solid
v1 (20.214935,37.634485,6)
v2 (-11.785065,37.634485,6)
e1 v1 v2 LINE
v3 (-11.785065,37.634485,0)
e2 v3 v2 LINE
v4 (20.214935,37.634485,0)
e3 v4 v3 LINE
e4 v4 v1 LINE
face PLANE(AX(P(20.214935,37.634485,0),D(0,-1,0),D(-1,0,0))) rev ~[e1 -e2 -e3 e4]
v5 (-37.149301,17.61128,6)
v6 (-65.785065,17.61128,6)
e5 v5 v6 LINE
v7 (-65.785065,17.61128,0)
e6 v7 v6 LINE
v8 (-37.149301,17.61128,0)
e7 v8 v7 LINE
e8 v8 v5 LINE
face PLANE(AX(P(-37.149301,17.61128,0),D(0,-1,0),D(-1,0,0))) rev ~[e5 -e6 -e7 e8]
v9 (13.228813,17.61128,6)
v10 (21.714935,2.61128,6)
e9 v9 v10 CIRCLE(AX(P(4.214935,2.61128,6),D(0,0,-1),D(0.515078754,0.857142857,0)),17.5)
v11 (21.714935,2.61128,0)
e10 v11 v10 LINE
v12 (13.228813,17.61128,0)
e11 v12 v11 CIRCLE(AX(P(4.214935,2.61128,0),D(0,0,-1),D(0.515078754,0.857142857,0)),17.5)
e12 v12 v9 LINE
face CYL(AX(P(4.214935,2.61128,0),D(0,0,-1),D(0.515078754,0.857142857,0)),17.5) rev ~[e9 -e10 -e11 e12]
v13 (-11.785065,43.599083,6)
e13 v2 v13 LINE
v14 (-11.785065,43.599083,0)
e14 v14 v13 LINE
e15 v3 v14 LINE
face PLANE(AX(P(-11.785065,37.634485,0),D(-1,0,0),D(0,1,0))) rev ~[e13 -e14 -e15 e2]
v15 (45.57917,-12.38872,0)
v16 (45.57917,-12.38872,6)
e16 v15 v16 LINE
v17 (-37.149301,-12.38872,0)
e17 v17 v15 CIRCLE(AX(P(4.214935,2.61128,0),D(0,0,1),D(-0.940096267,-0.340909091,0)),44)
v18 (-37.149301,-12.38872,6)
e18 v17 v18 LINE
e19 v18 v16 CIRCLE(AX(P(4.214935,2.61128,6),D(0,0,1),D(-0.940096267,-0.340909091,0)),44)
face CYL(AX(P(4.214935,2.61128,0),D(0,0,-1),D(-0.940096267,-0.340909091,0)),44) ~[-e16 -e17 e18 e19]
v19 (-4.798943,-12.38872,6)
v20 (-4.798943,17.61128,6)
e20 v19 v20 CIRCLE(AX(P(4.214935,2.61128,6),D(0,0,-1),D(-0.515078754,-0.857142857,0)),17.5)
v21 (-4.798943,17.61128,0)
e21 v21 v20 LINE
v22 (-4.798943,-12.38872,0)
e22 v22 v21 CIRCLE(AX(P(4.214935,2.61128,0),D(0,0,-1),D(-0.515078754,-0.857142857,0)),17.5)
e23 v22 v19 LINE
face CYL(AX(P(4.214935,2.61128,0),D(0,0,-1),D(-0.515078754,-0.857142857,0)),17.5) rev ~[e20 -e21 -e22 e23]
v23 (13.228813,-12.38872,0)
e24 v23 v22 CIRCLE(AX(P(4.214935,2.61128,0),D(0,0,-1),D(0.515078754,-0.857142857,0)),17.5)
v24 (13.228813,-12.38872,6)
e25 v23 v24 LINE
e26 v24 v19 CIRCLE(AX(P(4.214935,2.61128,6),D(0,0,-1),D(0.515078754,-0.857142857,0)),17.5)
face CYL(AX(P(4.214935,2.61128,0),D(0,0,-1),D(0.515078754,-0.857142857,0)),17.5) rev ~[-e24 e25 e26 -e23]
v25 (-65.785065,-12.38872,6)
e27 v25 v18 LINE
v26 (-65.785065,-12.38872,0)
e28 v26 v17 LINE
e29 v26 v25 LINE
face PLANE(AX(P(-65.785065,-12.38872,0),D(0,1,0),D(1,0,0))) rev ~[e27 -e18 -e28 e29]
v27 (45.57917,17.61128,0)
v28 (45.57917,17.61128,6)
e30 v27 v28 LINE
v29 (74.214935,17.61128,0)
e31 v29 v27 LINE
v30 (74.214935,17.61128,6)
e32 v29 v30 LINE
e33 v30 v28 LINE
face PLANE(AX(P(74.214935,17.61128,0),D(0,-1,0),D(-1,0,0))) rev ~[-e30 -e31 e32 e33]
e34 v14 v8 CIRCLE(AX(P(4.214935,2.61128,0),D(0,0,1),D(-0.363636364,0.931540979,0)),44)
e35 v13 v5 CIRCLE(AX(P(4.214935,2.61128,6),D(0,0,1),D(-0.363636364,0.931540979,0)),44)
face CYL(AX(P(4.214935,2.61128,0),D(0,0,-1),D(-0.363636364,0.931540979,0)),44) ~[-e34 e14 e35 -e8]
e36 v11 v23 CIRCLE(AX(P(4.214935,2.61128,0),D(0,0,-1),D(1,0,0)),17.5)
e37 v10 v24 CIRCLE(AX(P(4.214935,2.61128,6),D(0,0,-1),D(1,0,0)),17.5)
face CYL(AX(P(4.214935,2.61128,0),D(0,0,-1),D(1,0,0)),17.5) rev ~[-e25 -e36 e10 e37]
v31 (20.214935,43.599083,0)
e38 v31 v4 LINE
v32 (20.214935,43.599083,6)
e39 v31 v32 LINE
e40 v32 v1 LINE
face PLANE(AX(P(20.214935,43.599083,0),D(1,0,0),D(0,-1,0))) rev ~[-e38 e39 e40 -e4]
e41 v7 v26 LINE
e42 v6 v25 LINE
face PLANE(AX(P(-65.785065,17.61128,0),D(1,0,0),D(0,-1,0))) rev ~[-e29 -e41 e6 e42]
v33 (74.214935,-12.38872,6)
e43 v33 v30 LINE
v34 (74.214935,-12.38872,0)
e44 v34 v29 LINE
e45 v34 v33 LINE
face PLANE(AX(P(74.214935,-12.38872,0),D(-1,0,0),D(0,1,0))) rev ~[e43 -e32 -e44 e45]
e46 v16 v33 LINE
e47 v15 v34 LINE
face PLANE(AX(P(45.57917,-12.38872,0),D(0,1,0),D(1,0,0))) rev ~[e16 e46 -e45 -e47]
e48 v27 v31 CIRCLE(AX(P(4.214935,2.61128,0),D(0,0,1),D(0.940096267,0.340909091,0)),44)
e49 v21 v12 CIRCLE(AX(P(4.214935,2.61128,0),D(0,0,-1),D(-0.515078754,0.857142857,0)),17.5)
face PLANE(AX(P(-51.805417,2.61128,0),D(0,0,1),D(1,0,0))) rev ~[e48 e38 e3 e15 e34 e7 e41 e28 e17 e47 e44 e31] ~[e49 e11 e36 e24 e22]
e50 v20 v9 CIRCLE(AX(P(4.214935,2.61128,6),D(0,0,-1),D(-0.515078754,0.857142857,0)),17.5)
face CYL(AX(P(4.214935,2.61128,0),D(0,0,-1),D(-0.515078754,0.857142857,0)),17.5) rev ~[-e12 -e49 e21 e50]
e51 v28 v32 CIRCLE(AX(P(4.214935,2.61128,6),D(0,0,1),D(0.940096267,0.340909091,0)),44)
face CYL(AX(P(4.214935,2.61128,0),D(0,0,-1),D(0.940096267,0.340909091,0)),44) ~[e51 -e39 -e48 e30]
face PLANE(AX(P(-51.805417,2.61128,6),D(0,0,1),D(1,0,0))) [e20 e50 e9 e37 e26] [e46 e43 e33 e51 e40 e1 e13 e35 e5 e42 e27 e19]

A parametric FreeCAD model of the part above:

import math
import FreeCAD as App
import Part
import Sketcher
from FreeCAD import Vector
Q = App.Units.Quantity

doc = App.newDocument("Part")
params = doc.addObject("Spreadsheet::Sheet", "Params")
for row, (alias, value) in enumerate([
    ("sketch1_radius", "44 mm"),
    ("sketch1_radius2", "17.5 mm"),
    ("sketch1_width", "32 mm"),
    ("sketch1_height", "30 mm"),
    ("pad1_length", "6 mm"),
], start=1):
    params.set(f"A{row}", alias)
    params.set(f"B{row}", "=" + value)
    params.setAlias(f"B{row}", alias)

body = doc.addObject("PartDesign::Body", "Body")

sketch1 = doc.addObject("Sketcher::SketchObject", "Sketch")
body.addObject(sketch1)
sketch1.AttachmentSupport = (doc.XY_Plane, [""])
sketch1.MapMode = "FlatFace"
sketch1.addGeometry(Part.LineSegment(Vector(-65.785065, 17.61128, 0), Vector(-65.785065, -12.38872, 0)), False)
sketch1.addGeometry(Part.LineSegment(Vector(-65.785065, -12.38872, 0), Vector(-37.149301, -12.38872, 0)), False)
sketch1.addGeometry(Part.ArcOfCircle(Part.Circle(Vector(4.214935, 2.61128, 0), Vector(0, 0, 1), 44), math.radians(-160.06773), math.radians(-19.93227)), False)
sketch1.addGeometry(Part.LineSegment(Vector(45.57917, -12.38872, 0), Vector(74.214935, -12.38872, 0)), False)
sketch1.addGeometry(Part.LineSegment(Vector(74.214935, -12.38872, 0), Vector(74.214935, 17.61128, 0)), False)
sketch1.addGeometry(Part.LineSegment(Vector(74.214935, 17.61128, 0), Vector(45.57917, 17.61128, 0)), False)
sketch1.addGeometry(Part.ArcOfCircle(Part.Circle(Vector(4.214935, 2.61128, 0), Vector(0, 0, 1), 44), math.radians(19.93227), math.radians(68.676314)), False)
sketch1.addGeometry(Part.LineSegment(Vector(20.214935, 43.599083, 0), Vector(20.214935, 37.634485, 0)), False)
sketch1.addGeometry(Part.LineSegment(Vector(20.214935, 37.634485, 0), Vector(-11.785065, 37.634485, 0)), False)
sketch1.addGeometry(Part.LineSegment(Vector(-11.785065, 37.634485, 0), Vector(-11.785065, 43.599083, 0)), False)
sketch1.addGeometry(Part.ArcOfCircle(Part.Circle(Vector(4.214935, 2.61128, 0), Vector(0, 0, 1), 44), math.radians(111.323686), math.radians(160.06773)), False)
sketch1.addGeometry(Part.LineSegment(Vector(-37.149301, 17.61128, 0), Vector(-65.785065, 17.61128, 0)), False)
sketch1.addGeometry(Part.ArcOfCircle(Part.Circle(Vector(4.214935, 2.61128, 0), Vector(0, 0, 1), 17.5), math.radians(121.002719), math.radians(238.997281)), False)
sketch1.addGeometry(Part.ArcOfCircle(Part.Circle(Vector(4.214935, 2.61128, 0), Vector(0, 0, 1), 17.5), math.radians(58.997281), math.radians(121.002719)), False)
sketch1.addGeometry(Part.ArcOfCircle(Part.Circle(Vector(4.214935, 2.61128, 0), Vector(0, 0, 1), 17.5), math.radians(0), math.radians(58.997281)), False)
sketch1.addGeometry(Part.ArcOfCircle(Part.Circle(Vector(4.214935, 2.61128, 0), Vector(0, 0, 1), 17.5), math.radians(-58.997281), math.radians(0)), False)
sketch1.addGeometry(Part.ArcOfCircle(Part.Circle(Vector(4.214935, 2.61128, 0), Vector(0, 0, 1), 17.5), math.radians(-121.002719), math.radians(-58.997281)), False)
sketch1.addConstraint(Sketcher.Constraint("Coincident", 0, 2, 1, 1))
sketch1.addConstraint(Sketcher.Constraint("Coincident", 1, 2, 2, 1))
sketch1.addConstraint(Sketcher.Constraint("Coincident", 2, 2, 3, 1))
sketch1.addConstraint(Sketcher.Constraint("Coincident", 3, 2, 4, 1))
sketch1.addConstraint(Sketcher.Constraint("Coincident", 4, 2, 5, 1))
sketch1.addConstraint(Sketcher.Constraint("Coincident", 5, 2, 6, 1))
sketch1.addConstraint(Sketcher.Constraint("Coincident", 6, 2, 7, 1))
sketch1.addConstraint(Sketcher.Constraint("Coincident", 7, 2, 8, 1))
sketch1.addConstraint(Sketcher.Constraint("Coincident", 8, 2, 9, 1))
sketch1.addConstraint(Sketcher.Constraint("Coincident", 9, 2, 10, 1))
sketch1.addConstraint(Sketcher.Constraint("Coincident", 10, 2, 11, 1))
sketch1.addConstraint(Sketcher.Constraint("Coincident", 11, 2, 0, 1))
sketch1.addConstraint(Sketcher.Constraint("Tangent", 12, 1, 13, 2))
sketch1.addConstraint(Sketcher.Constraint("Tangent", 13, 1, 14, 2))
sketch1.addConstraint(Sketcher.Constraint("Tangent", 14, 1, 15, 2))
sketch1.addConstraint(Sketcher.Constraint("Tangent", 15, 1, 16, 2))
sketch1.addConstraint(Sketcher.Constraint("Tangent", 16, 1, 12, 2))
sketch1.addConstraint(Sketcher.Constraint("Vertical", 0))
sketch1.addConstraint(Sketcher.Constraint("Horizontal", 1))
sketch1.addConstraint(Sketcher.Constraint("Horizontal", 3))
sketch1.addConstraint(Sketcher.Constraint("Vertical", 4))
sketch1.addConstraint(Sketcher.Constraint("Horizontal", 5))
sketch1.addConstraint(Sketcher.Constraint("Vertical", 7))
sketch1.addConstraint(Sketcher.Constraint("Horizontal", 8))
sketch1.addConstraint(Sketcher.Constraint("Vertical", 9))
sketch1.addConstraint(Sketcher.Constraint("Horizontal", 11))
sketch1.addConstraint(Sketcher.Constraint("Coincident", 6, 3, 2, 3))
sketch1.addConstraint(Sketcher.Constraint("Coincident", 10, 3, 2, 3))
sketch1.addConstraint(Sketcher.Constraint("Coincident", 12, 3, 2, 3))
sketch1.addConstraint(Sketcher.Constraint("Coincident", 14, 3, 2, 3))
sketch1.addConstraint(Sketcher.Constraint("Equal", 2, 6))
sketch1.addConstraint(Sketcher.Constraint("Equal", 6, 10))
sketch1.addConstraint(Sketcher.Constraint("Horizontal", 1, 2, 2, 2))
sketch1.addConstraint(Sketcher.Constraint("Horizontal", 6, 2, 9, 2))
sketch1.addConstraint(Sketcher.Constraint("Horizontal", 5, 2, 10, 2))
sketch1.addConstraint(Sketcher.Constraint("Horizontal", 11, 2, 12, 1))
sketch1.addConstraint(Sketcher.Constraint("Horizontal", 12, 1, 13, 1))
sketch1.addConstraint(Sketcher.Constraint("Horizontal", 16, 3, 14, 1))
sketch1.addConstraint(Sketcher.Constraint("Horizontal", 3, 2, 15, 1))
sketch1.addConstraint(Sketcher.Constraint("Horizontal", 15, 1, 16, 1))
sketch1.addConstraint(Sketcher.Constraint("Vertical", 2, 2, 5, 2))
sketch1.addConstraint(Sketcher.Constraint("Equal", 1, 3))
sketch1.addConstraint(Sketcher.Constraint("Radius", 2, Q("44 mm")))
sketch1.addConstraint(Sketcher.Constraint("Radius", 12, Q("17.5 mm")))
sketch1.addConstraint(Sketcher.Constraint("DistanceX", 8, 2, 8, 1, Q("32 mm")))
sketch1.addConstraint(Sketcher.Constraint("DistanceY", 0, 2, 0, 1, Q("30 mm")))
sketch1.addConstraint(Sketcher.Constraint("DistanceX", 0, 2, 2, 3, Q("70 mm")))
sketch1.addConstraint(Sketcher.Constraint("DistanceX", 1, 2, -1, 1, Q("37.149301 mm")))
sketch1.addConstraint(Sketcher.Constraint("DistanceY", 7, 2, 7, 1, Q("5.964598 mm")))
sketch1.addConstraint(Sketcher.Constraint("DistanceY", -1, 1, 2, 3, Q("2.61128 mm")))
sketch1.setExpression("Constraints[42]", "Params.sketch1_radius")
sketch1.setExpression("Constraints[43]", "Params.sketch1_radius2")
sketch1.setExpression("Constraints[44]", "Params.sketch1_width")
sketch1.setExpression("Constraints[45]", "Params.sketch1_height")
pad1 = doc.addObject("PartDesign::Pad", "Pad")
body.addObject(pad1)
pad1.Profile = sketch1
pad1.setExpression("Length", "Params.pad1_length")

doc.recompute()
